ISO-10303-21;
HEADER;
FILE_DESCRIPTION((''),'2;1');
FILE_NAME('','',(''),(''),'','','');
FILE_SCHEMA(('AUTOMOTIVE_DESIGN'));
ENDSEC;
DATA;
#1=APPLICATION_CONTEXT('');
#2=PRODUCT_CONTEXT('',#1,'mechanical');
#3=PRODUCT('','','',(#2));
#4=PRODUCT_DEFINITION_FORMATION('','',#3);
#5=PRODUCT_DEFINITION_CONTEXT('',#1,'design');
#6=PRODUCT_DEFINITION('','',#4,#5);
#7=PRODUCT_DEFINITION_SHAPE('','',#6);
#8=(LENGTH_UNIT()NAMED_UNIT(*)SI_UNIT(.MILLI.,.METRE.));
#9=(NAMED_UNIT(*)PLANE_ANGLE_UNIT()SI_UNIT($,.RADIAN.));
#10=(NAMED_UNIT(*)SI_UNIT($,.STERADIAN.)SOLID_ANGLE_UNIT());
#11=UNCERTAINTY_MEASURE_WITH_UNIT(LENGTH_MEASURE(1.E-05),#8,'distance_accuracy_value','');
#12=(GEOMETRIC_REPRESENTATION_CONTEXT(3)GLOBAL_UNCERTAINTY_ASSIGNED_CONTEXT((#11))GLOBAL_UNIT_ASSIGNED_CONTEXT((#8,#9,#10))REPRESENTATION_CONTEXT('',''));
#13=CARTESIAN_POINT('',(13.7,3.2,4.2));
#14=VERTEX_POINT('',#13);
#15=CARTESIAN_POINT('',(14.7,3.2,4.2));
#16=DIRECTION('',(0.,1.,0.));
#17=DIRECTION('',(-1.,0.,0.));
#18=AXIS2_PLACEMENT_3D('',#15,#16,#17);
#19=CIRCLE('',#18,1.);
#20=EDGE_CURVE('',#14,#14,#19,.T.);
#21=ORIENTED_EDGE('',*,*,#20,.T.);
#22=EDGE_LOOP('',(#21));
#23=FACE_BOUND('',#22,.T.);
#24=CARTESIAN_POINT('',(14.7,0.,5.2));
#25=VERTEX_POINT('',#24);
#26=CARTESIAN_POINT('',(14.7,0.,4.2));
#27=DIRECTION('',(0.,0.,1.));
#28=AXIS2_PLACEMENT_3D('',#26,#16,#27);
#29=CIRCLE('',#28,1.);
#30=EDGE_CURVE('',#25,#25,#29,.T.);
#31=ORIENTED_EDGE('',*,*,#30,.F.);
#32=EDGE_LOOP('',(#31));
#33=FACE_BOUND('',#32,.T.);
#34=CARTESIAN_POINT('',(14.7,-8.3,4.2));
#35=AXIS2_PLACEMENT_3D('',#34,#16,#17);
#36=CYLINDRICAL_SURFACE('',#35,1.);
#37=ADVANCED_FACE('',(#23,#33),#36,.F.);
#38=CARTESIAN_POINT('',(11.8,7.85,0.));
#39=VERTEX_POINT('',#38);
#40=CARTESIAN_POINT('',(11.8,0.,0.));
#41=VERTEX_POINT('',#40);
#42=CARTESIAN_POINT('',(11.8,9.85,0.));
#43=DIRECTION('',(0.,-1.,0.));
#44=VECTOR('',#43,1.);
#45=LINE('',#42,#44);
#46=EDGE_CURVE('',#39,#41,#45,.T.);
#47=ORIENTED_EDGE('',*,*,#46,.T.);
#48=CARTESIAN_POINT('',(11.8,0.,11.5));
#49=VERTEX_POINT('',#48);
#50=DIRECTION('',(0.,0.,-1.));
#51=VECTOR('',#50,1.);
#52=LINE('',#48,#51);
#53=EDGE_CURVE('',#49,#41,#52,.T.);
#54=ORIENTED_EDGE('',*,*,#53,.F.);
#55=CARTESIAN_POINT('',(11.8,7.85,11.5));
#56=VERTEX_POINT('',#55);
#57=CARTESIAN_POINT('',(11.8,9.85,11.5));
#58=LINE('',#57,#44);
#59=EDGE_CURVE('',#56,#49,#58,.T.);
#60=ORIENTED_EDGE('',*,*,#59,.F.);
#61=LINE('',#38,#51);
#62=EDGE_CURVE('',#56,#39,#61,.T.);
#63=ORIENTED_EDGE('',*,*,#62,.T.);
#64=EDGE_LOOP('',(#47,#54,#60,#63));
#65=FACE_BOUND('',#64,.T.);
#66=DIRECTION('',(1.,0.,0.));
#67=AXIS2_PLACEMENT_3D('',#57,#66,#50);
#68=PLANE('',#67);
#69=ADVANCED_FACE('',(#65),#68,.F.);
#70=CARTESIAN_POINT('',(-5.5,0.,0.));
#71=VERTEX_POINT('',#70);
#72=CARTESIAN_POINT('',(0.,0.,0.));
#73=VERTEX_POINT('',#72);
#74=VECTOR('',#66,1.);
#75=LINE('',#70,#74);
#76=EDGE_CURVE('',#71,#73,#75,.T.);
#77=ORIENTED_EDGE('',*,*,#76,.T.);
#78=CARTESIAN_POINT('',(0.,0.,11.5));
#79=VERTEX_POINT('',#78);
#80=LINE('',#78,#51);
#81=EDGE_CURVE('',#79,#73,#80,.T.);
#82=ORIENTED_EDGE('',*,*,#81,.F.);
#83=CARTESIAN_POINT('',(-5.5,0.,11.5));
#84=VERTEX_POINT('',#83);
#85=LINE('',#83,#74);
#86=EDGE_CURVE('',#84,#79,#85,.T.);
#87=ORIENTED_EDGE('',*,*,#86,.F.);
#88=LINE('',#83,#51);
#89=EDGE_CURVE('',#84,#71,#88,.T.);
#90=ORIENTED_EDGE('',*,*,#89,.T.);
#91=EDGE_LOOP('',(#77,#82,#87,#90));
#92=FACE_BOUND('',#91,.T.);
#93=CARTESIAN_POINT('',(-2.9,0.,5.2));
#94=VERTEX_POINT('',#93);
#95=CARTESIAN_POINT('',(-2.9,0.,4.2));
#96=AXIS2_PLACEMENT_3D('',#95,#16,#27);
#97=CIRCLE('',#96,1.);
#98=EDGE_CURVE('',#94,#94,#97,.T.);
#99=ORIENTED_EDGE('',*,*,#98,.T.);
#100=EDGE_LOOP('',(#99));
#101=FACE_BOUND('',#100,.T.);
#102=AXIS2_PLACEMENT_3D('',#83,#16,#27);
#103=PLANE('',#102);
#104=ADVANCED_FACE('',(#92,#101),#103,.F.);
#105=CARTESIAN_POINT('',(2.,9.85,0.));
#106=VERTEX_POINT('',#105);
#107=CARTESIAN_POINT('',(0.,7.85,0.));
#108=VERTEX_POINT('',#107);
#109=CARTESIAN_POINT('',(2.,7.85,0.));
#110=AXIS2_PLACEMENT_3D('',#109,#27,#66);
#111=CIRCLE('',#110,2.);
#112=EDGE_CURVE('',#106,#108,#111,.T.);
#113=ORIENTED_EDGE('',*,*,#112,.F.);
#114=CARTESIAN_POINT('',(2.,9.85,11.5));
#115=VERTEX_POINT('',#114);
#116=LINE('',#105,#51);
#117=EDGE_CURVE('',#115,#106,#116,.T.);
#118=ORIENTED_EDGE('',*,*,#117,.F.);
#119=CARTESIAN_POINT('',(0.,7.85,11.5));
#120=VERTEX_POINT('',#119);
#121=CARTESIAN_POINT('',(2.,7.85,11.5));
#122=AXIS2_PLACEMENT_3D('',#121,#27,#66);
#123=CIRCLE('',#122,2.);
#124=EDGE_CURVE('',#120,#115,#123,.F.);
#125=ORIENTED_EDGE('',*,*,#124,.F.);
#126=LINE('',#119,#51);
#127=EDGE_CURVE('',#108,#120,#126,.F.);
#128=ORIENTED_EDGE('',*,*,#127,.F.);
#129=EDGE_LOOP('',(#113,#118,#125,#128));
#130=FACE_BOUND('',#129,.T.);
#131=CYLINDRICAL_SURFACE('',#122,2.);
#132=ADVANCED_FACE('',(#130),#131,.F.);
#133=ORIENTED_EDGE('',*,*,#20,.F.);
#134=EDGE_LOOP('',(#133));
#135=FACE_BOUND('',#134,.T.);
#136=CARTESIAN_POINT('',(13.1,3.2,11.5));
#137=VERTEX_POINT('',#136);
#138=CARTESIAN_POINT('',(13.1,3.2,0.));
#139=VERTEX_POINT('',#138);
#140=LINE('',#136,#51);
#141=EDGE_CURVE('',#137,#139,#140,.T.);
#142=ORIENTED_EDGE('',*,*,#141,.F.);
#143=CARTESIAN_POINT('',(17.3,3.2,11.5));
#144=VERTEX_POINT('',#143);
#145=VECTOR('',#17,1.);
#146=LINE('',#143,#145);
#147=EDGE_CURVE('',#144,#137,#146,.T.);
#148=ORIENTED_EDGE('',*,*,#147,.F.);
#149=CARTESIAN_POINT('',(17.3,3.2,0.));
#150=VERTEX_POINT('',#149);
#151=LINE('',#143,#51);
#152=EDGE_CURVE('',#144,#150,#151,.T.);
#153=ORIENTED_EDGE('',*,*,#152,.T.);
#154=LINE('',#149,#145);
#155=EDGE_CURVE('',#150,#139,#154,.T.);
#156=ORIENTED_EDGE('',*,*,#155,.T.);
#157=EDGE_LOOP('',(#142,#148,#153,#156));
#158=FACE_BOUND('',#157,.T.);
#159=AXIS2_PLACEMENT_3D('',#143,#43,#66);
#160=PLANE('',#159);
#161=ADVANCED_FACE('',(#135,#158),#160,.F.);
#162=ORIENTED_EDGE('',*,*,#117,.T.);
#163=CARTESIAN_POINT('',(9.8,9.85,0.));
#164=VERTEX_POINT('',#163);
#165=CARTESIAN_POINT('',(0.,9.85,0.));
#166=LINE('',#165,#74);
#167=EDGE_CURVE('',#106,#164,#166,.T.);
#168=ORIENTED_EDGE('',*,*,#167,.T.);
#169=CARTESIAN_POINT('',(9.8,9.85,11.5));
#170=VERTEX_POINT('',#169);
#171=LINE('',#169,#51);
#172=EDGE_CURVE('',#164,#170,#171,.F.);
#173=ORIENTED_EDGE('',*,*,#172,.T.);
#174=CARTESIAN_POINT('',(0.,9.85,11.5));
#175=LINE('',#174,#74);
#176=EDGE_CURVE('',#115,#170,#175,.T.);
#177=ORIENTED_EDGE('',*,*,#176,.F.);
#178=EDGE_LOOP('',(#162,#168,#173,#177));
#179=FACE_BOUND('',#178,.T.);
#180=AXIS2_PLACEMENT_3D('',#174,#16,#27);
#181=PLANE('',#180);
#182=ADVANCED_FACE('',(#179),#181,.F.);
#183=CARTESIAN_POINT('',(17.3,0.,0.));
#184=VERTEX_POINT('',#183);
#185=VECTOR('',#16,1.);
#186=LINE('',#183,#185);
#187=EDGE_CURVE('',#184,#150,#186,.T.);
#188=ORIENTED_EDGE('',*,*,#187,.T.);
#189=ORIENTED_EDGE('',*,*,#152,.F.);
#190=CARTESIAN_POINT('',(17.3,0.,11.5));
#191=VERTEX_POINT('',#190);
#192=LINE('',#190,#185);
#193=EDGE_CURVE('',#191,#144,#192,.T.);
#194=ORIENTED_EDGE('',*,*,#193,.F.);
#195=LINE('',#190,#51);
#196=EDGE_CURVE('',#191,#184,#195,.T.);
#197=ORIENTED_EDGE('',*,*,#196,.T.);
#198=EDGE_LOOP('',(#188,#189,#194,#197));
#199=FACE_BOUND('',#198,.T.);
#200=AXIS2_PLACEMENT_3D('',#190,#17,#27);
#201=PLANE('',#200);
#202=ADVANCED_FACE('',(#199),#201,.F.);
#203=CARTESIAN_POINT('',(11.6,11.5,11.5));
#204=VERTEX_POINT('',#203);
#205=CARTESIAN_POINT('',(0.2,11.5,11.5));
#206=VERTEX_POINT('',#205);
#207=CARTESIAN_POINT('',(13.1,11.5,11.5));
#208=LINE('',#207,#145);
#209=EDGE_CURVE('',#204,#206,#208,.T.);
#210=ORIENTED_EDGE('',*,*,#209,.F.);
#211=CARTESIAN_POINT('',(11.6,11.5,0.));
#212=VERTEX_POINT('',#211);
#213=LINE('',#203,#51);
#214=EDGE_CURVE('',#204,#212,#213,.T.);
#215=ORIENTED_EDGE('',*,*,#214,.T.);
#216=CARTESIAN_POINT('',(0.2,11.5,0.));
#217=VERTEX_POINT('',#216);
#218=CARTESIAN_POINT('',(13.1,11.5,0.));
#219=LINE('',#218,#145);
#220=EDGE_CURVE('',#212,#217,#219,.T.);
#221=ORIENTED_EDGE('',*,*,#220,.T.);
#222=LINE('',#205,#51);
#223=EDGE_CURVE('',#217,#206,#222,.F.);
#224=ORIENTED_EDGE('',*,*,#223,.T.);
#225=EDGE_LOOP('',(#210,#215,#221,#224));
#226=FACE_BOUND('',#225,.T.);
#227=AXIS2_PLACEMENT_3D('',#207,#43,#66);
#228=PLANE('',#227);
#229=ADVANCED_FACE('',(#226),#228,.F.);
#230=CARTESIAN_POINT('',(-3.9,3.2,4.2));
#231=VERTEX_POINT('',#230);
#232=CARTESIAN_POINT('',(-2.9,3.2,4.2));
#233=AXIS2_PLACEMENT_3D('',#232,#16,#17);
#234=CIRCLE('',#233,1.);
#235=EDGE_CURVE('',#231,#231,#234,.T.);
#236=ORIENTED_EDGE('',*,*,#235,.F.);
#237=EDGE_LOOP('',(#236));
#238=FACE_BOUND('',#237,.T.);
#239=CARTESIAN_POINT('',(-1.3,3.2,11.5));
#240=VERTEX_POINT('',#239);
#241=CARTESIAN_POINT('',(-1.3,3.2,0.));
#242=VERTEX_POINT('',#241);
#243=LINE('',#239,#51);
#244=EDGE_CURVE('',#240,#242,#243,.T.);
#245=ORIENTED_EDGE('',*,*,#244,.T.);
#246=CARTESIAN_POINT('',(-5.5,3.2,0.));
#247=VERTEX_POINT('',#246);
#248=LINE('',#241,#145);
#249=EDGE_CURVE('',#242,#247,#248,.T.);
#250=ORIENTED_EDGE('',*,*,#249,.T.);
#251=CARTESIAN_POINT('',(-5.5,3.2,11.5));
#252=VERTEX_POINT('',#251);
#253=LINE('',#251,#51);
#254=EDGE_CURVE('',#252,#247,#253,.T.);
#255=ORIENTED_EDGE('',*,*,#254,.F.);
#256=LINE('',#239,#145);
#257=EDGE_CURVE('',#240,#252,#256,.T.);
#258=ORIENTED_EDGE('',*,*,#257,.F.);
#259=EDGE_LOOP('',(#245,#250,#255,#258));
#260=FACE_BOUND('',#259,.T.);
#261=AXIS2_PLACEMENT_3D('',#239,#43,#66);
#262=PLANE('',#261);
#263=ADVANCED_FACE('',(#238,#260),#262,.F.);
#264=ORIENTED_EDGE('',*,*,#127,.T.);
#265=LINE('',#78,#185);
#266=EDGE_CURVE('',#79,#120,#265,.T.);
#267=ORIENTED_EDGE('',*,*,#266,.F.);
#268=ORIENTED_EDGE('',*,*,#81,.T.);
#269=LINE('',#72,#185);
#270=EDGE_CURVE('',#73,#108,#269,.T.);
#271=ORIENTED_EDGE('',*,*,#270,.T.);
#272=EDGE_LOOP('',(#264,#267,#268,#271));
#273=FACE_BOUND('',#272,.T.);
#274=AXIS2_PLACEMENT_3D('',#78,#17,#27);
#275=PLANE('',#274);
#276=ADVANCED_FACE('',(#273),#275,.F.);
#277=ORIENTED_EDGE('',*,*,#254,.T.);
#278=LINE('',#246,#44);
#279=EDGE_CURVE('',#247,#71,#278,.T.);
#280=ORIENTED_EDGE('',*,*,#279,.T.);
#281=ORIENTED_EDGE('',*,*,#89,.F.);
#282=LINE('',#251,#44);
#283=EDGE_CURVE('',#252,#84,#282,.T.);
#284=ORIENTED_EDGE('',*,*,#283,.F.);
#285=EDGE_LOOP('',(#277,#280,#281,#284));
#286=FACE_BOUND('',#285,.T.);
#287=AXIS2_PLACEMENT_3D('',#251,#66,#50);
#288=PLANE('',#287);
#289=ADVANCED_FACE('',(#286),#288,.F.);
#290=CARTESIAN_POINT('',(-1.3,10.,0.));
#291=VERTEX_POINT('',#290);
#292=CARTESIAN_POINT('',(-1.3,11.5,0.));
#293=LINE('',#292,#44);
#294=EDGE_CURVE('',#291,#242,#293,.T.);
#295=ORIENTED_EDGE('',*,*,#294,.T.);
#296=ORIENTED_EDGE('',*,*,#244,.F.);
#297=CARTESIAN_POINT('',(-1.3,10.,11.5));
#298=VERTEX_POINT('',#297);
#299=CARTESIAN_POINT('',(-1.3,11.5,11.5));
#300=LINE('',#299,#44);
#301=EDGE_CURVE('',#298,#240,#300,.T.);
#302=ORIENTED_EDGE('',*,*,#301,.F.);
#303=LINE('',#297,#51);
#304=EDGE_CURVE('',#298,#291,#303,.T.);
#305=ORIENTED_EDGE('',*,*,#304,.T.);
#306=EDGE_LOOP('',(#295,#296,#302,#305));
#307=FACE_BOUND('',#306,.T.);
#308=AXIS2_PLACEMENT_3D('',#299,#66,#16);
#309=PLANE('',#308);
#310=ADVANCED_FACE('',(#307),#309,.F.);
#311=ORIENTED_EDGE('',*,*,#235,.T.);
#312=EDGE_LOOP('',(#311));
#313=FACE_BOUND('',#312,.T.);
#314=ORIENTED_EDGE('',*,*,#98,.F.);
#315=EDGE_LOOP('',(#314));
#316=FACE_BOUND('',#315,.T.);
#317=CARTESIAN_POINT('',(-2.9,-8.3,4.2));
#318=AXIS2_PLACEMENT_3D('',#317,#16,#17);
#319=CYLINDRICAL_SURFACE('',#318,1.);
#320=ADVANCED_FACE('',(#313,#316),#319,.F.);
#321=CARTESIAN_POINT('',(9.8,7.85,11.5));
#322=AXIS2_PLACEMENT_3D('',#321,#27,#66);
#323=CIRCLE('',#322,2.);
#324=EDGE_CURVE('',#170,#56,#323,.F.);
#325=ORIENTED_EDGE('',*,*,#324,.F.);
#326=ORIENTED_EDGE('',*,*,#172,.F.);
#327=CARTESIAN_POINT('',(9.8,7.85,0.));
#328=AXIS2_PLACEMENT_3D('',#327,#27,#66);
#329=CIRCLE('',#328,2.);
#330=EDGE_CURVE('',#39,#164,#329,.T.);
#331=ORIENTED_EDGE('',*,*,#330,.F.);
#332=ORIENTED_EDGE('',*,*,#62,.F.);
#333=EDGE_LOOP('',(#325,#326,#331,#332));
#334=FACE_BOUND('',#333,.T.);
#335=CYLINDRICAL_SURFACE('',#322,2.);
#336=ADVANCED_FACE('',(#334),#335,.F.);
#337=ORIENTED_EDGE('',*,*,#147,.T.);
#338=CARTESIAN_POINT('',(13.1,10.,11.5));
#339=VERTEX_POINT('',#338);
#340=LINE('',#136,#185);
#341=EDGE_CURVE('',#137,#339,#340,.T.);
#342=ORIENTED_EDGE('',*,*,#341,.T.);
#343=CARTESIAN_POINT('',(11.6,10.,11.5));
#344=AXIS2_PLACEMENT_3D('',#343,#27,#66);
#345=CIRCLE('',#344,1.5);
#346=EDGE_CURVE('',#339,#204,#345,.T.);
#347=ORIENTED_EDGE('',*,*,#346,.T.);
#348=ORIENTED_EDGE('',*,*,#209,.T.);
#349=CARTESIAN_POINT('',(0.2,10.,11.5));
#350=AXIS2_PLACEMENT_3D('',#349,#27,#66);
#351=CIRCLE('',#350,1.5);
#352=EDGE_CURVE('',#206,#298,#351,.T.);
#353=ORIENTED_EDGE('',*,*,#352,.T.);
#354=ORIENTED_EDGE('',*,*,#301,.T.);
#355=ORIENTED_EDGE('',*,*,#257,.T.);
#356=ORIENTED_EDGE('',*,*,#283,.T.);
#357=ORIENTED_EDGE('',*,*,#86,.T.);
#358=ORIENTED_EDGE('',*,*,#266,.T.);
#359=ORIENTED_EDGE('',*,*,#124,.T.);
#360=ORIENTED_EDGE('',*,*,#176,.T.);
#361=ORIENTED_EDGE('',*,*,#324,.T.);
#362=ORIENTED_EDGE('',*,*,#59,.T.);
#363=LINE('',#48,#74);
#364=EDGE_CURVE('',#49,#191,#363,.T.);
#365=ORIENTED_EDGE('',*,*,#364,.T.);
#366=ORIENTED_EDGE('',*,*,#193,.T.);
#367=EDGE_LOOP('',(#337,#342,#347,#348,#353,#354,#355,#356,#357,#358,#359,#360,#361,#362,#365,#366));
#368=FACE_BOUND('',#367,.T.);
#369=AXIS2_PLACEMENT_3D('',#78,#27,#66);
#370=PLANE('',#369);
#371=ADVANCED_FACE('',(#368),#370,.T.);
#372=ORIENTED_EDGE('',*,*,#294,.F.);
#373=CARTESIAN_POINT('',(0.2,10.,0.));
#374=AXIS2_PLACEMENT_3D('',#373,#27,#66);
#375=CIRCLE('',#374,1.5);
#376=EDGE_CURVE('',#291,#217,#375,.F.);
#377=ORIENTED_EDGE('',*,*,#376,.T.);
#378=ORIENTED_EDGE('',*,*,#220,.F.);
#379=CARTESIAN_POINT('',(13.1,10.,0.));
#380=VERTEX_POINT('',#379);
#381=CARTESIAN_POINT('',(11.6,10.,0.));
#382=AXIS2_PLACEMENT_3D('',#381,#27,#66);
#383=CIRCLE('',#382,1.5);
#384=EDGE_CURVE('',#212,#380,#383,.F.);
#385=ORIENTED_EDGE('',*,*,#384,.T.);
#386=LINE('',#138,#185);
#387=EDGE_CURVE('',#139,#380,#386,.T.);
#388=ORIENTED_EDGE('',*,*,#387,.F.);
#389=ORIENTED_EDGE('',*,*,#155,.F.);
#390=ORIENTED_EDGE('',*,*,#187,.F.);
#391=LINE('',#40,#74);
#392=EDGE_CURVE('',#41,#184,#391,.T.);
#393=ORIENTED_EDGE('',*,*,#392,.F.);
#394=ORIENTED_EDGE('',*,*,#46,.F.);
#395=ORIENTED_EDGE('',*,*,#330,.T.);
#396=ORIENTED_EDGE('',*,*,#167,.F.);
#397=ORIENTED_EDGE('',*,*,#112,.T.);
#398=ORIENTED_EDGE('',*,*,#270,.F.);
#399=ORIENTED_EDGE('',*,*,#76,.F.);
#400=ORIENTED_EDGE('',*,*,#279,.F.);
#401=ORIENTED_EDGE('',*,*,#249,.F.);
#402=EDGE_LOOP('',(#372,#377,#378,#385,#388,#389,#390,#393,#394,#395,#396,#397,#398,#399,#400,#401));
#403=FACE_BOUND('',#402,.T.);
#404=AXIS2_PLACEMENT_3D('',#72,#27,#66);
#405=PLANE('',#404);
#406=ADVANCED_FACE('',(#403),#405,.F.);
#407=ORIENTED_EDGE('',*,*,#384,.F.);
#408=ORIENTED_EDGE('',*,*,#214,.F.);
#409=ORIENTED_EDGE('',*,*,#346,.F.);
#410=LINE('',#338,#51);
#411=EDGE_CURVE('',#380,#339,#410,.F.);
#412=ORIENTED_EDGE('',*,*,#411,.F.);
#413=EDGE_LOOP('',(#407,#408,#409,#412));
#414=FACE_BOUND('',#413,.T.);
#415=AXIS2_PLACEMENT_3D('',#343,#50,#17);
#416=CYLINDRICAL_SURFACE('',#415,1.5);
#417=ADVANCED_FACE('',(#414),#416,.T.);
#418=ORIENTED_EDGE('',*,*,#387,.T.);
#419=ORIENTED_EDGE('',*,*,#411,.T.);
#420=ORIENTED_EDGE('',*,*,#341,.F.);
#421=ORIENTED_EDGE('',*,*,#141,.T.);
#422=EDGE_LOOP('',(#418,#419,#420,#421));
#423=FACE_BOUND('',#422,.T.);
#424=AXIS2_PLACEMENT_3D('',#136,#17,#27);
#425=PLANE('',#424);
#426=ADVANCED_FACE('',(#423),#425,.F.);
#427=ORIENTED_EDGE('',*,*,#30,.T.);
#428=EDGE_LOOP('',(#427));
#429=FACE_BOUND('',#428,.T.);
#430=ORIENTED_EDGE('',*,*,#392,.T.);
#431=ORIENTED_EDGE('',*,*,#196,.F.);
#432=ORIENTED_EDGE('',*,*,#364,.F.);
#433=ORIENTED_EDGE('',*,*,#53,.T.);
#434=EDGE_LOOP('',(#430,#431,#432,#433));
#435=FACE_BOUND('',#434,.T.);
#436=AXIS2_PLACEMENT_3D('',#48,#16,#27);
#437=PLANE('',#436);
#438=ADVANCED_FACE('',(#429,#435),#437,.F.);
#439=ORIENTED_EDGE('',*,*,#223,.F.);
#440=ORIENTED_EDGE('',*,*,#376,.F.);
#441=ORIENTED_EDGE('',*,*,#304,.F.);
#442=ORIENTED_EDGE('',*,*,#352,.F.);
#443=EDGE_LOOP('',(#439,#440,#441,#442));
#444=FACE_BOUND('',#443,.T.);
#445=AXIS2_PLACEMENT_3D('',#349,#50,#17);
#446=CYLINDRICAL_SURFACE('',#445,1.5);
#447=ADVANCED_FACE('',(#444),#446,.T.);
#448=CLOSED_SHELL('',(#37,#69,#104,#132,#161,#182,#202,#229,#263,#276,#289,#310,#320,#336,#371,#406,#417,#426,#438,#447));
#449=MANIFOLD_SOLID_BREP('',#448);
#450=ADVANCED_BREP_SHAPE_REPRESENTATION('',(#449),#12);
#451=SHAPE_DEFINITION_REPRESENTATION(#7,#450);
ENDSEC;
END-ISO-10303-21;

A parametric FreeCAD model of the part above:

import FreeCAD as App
import Part
import Sketcher
from FreeCAD import Vector
Q = App.Units.Quantity


def edges_at(feature, points):
    """Names of the edges that pass closest to the given points."""
    edges = feature.Shape.Edges
    near = lambda p: min(range(len(edges)), key=lambda i: edges[i].distToShape(Part.Vertex(*p))[0])
    return sorted({f"Edge{near(p) + 1}" for p in points})

doc = App.newDocument("Part")
params = doc.addObject("Spreadsheet::Sheet", "Params")
for row, (alias, value) in enumerate([
    ("sketch1_width", "11.8 mm"),
    ("sketch1_width2", "5.5 mm"),
    ("sketch1_width3", "4.2 mm"),
    ("sketch1_height", "3.2 mm"),
    ("sketch1_height2", "8.3 mm"),
    ("pad1_length", "11.5 mm"),
    ("fillet_radius", "2 mm"),
    ("fillet2_radius", "1.5 mm"),
    ("sketch2_diameter", "2 mm"),
    ("pocket1_length", "11.5 mm"),
], start=1):
    params.set(f"A{row}", alias)
    params.set(f"B{row}", "=" + value)
    params.setAlias(f"B{row}", alias)

body = doc.addObject("PartDesign::Body", "Body")

sketch1 = body.newObject("Sketcher::SketchObject", "Sketch")
sketch1.AttachmentSupport = (doc.getObject("XY_Plane"), [""])
sketch1.MapMode = "FlatFace"
sketch1.addGeometry([
    Part.LineSegment(Vector(0, 0, 0), Vector(0, 9.85, 0)),
    Part.LineSegment(Vector(0, 9.85, 0), Vector(11.8, 9.85, 0)),
    Part.LineSegment(Vector(11.8, 9.85, 0), Vector(11.8, 0, 0)),
    Part.LineSegment(Vector(11.8, 0, 0), Vector(17.3, 0, 0)),
    Part.LineSegment(Vector(17.3, 0, 0), Vector(17.3, 3.2, 0)),
    Part.LineSegment(Vector(17.3, 3.2, 0), Vector(13.1, 3.2, 0)),
    Part.LineSegment(Vector(13.1, 3.2, 0), Vector(13.1, 11.5, 0)),
    Part.LineSegment(Vector(13.1, 11.5, 0), Vector(-1.3, 11.5, 0)),
    Part.LineSegment(Vector(-1.3, 11.5, 0), Vector(-1.3, 3.2, 0)),
    Part.LineSegment(Vector(-1.3, 3.2, 0), Vector(-5.5, 3.2, 0)),
    Part.LineSegment(Vector(-5.5, 3.2, 0), Vector(-5.5, 0, 0)),
    Part.LineSegment(Vector(-5.5, 0, 0), Vector(0, 0, 0)),
], False)
sketch1.addConstraint([
    Sketcher.Constraint("Coincident", 0, 2, 1, 1),
    Sketcher.Constraint("Coincident", 1, 2, 2, 1),
    Sketcher.Constraint("Coincident", 2, 2, 3, 1),
    Sketcher.Constraint("Coincident", 3, 2, 4, 1),
    Sketcher.Constraint("Coincident", 4, 2, 5, 1),
    Sketcher.Constraint("Coincident", 5, 2, 6, 1),
    Sketcher.Constraint("Coincident", 6, 2, 7, 1),
    Sketcher.Constraint("Coincident", 7, 2, 8, 1),
    Sketcher.Constraint("Coincident", 8, 2, 9, 1),
    Sketcher.Constraint("Coincident", 9, 2, 10, 1),
    Sketcher.Constraint("Coincident", 10, 2, 11, 1),
    Sketcher.Constraint("Coincident", 11, 2, 0, 1),
    Sketcher.Constraint("Vertical", 0),
    Sketcher.Constraint("Horizontal", 1),
    Sketcher.Constraint("Vertical", 2),
    Sketcher.Constraint("Horizontal", 3),
    Sketcher.Constraint("Vertical", 4),
    Sketcher.Constraint("Horizontal", 5),
    Sketcher.Constraint("Vertical", 6),
    Sketcher.Constraint("Horizontal", 7),
    Sketcher.Constraint("Vertical", 8),
    Sketcher.Constraint("Horizontal", 9),
    Sketcher.Constraint("Vertical", 10),
    Sketcher.Constraint("Horizontal", 11),
    Sketcher.Constraint("Coincident", 11, 2, -1, 1),
    Sketcher.Constraint("PointOnObject", 2, 2, -1),
    Sketcher.Constraint("Horizontal", 5, 2, 8, 2),
    Sketcher.Constraint("Equal", 5, 9),
    Sketcher.Constraint("Equal", 3, 11),
    Sketcher.Constraint("DistanceX", 1, 1, 1, 2, Q("11.8 mm")),
    Sketcher.Constraint("DistanceX", 3, 1, 3, 2, Q("5.5 mm")),
    Sketcher.Constraint("DistanceX", 5, 2, 5, 1, Q("4.2 mm")),
    Sketcher.Constraint("DistanceY", 4, 1, 4, 2, Q("3.2 mm")),
    Sketcher.Constraint("DistanceY", 6, 1, 6, 2, Q("8.3 mm")),
    Sketcher.Constraint("DistanceY", 0, 1, 0, 2, Q("9.85 mm")),
])
sketch1.setExpression("Constraints[29]", "Params.sketch1_width")
sketch1.setExpression("Constraints[30]", "Params.sketch1_width2")
sketch1.setExpression("Constraints[31]", "Params.sketch1_width3")
sketch1.setExpression("Constraints[32]", "Params.sketch1_height")
sketch1.setExpression("Constraints[33]", "Params.sketch1_height2")
pad1 = body.newObject("PartDesign::Pad", "Pad")
pad1.Profile = sketch1
pad1.setExpression("Length", "Params.pad1_length")
doc.recompute()

fillet = body.newObject("PartDesign::Fillet", "Fillet")
fillet.Base = (pad1, edges_at(pad1, [(11.8, 9.85, 5.75), (0, 9.85, 5.75)]))
fillet.setExpression("Radius", "Params.fillet_radius")
doc.recompute()

fillet2 = body.newObject("PartDesign::Fillet", "Fillet001")
fillet2.Base = (fillet, edges_at(fillet, [(-1.3, 11.5, 5.75), (13.1, 11.5, 5.75)]))
fillet2.setExpression("Radius", "Params.fillet2_radius")

sketch2 = body.newObject("Sketcher::SketchObject", "Sketch001")
sketch2.AttachmentSupport = (doc.getObject("XZ_Plane"), [""])
sketch2.MapMode = "FlatFace"
sketch2.AttachmentOffset = App.Placement(Vector(0, 0, -3.2), App.Rotation())
sketch2.addGeometry([
    Part.Circle(Vector(-2.9, 4.2, 0), Vector(0, 0, 1), 1),
    Part.Circle(Vector(14.7, 4.2, 0), Vector(0, 0, 1), 1),
], False)
sketch2.addConstraint([
    Sketcher.Constraint("Equal", 0, 1),
    Sketcher.Constraint("Horizontal", 0, 3, 1, 3),
    Sketcher.Constraint("Diameter", 0, Q("2 mm")),
    Sketcher.Constraint("DistanceX", 0, 3, -1, 1, Q("2.9 mm")),
    Sketcher.Constraint("DistanceY", -1, 1, 0, 3, Q("4.2 mm")),
    Sketcher.Constraint("DistanceX", -1, 1, 1, 3, Q("14.7 mm")),
])
sketch2.setExpression("Constraints[2]", "Params.sketch2_diameter")
pocket1 = body.newObject("PartDesign::Pocket", "Pocket")
pocket1.Profile = sketch2
pocket1.setExpression("Length", "Params.pocket1_length")
pocket1.Reversed = True

doc.recompute()
